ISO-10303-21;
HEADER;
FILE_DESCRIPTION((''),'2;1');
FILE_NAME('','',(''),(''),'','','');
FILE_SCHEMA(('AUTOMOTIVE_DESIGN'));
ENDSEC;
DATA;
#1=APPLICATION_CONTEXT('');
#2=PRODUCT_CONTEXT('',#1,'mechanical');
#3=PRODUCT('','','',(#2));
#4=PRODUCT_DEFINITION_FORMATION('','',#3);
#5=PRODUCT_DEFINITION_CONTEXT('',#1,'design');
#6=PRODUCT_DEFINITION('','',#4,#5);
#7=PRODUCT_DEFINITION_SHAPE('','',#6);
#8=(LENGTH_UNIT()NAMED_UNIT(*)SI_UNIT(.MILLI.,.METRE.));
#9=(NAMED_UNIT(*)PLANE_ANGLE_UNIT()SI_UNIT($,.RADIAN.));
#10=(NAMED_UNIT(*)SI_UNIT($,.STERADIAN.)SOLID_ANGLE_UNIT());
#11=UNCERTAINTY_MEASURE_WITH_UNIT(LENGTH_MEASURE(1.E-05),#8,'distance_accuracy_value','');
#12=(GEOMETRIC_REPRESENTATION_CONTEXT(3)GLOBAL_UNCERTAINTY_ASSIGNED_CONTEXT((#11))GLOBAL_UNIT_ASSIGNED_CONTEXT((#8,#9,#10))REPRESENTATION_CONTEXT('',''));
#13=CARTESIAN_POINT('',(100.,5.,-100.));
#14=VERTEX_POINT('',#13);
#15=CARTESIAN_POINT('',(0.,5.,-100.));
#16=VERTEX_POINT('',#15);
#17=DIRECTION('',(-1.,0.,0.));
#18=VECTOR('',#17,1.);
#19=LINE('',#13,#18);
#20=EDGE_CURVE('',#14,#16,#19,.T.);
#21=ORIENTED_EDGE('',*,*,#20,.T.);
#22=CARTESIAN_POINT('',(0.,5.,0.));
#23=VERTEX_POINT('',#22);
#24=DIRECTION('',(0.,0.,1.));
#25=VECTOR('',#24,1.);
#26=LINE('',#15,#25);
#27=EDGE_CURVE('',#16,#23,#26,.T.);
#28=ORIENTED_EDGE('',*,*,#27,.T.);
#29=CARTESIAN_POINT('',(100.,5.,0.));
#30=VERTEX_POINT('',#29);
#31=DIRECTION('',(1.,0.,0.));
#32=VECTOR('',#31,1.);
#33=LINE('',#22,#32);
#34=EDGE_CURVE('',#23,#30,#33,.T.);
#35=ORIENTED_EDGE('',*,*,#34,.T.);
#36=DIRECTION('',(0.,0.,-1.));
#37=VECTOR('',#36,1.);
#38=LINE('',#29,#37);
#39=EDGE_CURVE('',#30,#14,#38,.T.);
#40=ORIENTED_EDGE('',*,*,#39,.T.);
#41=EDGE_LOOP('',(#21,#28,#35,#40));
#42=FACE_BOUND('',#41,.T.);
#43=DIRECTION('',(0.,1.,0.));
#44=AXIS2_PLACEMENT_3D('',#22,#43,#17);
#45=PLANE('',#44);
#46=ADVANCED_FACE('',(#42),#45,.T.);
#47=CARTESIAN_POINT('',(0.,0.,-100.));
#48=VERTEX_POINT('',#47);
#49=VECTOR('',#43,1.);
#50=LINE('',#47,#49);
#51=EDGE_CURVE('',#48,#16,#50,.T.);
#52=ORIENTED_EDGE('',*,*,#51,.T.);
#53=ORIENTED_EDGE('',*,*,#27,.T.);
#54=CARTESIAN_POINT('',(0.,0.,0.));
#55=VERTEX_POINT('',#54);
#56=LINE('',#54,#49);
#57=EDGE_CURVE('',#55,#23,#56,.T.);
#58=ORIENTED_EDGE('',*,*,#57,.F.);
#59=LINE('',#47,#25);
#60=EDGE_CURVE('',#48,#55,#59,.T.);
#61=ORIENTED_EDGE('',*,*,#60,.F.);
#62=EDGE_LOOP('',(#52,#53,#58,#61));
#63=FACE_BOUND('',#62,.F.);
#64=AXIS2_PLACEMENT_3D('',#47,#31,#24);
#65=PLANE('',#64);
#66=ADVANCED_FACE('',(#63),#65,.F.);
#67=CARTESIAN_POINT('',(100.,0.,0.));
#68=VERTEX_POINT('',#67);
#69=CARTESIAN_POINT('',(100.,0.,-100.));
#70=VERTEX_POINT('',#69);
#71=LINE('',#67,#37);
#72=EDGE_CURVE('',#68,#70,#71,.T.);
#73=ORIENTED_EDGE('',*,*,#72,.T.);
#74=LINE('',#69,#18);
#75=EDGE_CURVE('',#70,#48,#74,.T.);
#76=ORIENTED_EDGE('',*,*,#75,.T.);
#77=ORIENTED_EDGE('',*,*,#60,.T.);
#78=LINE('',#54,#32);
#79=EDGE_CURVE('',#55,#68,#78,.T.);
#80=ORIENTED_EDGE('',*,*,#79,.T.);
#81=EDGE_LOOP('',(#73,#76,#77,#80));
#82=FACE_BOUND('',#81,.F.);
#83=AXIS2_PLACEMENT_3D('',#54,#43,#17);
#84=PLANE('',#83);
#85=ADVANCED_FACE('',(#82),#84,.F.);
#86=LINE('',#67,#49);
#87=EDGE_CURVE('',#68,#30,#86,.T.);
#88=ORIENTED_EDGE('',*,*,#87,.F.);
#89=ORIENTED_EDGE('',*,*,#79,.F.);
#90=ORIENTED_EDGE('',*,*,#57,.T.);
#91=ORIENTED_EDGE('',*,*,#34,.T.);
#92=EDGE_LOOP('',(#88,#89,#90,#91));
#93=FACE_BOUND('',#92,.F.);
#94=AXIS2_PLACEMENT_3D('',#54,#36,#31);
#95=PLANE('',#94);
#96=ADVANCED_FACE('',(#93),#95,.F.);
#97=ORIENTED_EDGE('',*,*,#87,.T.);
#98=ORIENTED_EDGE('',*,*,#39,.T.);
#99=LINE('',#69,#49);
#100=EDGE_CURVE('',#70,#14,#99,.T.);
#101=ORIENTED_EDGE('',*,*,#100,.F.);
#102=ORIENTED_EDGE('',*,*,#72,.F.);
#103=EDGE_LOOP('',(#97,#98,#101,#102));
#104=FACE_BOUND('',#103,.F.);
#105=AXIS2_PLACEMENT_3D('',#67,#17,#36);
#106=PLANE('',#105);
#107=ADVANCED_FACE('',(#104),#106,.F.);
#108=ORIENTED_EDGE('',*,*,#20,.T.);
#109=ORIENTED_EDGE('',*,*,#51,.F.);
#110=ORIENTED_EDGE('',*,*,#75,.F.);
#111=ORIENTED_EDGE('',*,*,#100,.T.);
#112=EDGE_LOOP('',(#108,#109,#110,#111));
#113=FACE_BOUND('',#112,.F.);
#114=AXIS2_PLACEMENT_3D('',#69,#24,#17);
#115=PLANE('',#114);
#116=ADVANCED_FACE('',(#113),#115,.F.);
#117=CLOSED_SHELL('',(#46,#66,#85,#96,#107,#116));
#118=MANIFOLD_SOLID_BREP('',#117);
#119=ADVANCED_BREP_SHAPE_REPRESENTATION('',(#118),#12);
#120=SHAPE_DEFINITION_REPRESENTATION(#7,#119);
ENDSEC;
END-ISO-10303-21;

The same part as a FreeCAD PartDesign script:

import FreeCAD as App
import Part
import Sketcher

V = App.Vector

doc = App.newDocument("Part")
body = doc.addObject("PartDesign::Body", "Body")

sketch1 = body.newObject("Sketcher::SketchObject", "Sketch")
sketch1.AttachmentSupport = (doc.getObject("XZ_Plane"), [""])
sketch1.MapMode = "FlatFace"
sketch1.addGeometry(Part.LineSegment(V(0, -100, 0), V(0, 0, 0)), False)
sketch1.addGeometry(Part.LineSegment(V(0, 0, 0), V(100, 0, 0)), False)
sketch1.addGeometry(Part.LineSegment(V(100, 0, 0), V(100, -100, 0)), False)
sketch1.addGeometry(Part.LineSegment(V(100, -100, 0), V(0, -100, 0)), False)
sketch1.addConstraint(Sketcher.Constraint("Coincident", 0, 2, 1, 1))
sketch1.addConstraint(Sketcher.Constraint("Coincident", 1, 2, 2, 1))
sketch1.addConstraint(Sketcher.Constraint("Coincident", 2, 2, 3, 1))
sketch1.addConstraint(Sketcher.Constraint("Coincident", 3, 2, 0, 1))
sketch1.addConstraint(Sketcher.Constraint("Vertical", 0))
sketch1.addConstraint(Sketcher.Constraint("Horizontal", 1))
sketch1.addConstraint(Sketcher.Constraint("Vertical", 2))
sketch1.addConstraint(Sketcher.Constraint("Horizontal", 3))
sketch1.addConstraint(Sketcher.Constraint("Coincident", 0, 2, -1, 1))
sketch1.addConstraint(Sketcher.Constraint("Equal", 3, 0))
sketch1.addConstraint(Sketcher.Constraint("DistanceX", 1, 1, 1, 2, 100.0))
pad1 = body.newObject("PartDesign::Pad", "Pad")
pad1.Profile = sketch1
pad1.Length = 5
pad1.Reversed = True

doc.recompute()
